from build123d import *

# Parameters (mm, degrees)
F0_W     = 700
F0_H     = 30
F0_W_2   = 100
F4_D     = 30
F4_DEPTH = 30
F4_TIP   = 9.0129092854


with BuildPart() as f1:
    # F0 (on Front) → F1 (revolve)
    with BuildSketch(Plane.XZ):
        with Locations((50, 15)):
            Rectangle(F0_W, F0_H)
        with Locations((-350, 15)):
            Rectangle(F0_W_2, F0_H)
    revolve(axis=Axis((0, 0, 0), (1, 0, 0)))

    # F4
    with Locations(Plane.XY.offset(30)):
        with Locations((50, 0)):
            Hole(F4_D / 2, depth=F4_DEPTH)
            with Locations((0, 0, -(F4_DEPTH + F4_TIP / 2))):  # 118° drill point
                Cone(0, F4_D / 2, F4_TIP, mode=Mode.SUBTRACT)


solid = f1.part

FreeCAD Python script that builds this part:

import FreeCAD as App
import Part
import Sketcher


def add_polygon(sketch, points):
    """Adds a closed chain of lines whose ends are joined by coincident constraints."""
    first, n = sketch.GeometryCount, len(points)
    for a, b in zip(points, points[1:] + points[:1]):
        sketch.addGeometry(Part.LineSegment(App.Vector(*a, 0), App.Vector(*b, 0)), False)
    for i in range(n):
        sketch.addConstraint(Sketcher.Constraint("Coincident", first + i, 2, first + (i + 1) % n, 1))

doc = App.newDocument("Part")
body = doc.addObject("PartDesign::Body", "Body")

# Sketch on XZ plane
sketch1 = body.newObject("Sketcher::SketchObject", "Sketch")
sketch1.AttachmentSupport = (doc.getObject("XZ_Plane"), [""])
sketch1.MapMode = "FlatFace"
add_polygon(sketch1, [(400, 0), (400, 30), (-400, 30), (-400, 0)])  # lines 0-3
sketch1.addConstraint(Sketcher.Constraint("Vertical", 0))
sketch1.addConstraint(Sketcher.Constraint("Horizontal", 1))
sketch1.addConstraint(Sketcher.Constraint("Vertical", 2))
sketch1.addConstraint(Sketcher.Constraint("Horizontal", 3))
sketch1.addConstraint(Sketcher.Constraint("Symmetric", 2, 2, 3, 2, -1, 1))
sketch1.addConstraint(Sketcher.Constraint("DistanceX", 1, 2, 1, 1, 800.0))
sketch1.addConstraint(Sketcher.Constraint("DistanceY", 0, 1, 0, 2, 30.0))
revolution = body.newObject("PartDesign::Revolution", "Revolution")
revolution.Profile = sketch1
revolution.ReferenceAxis = (sketch1, ["H_Axis"])
revolution.Angle = 360

# Sketch on XY plane
sketch2 = body.newObject("Sketcher::SketchObject", "Sketch001")
sketch2.AttachmentSupport = (doc.getObject("XY_Plane"), [""])
sketch2.MapMode = "FlatFace"
sketch2.AttachmentOffset = App.Placement(App.Vector(0, 0, 30), App.Rotation())
sketch2.addGeometry(Part.Circle(App.Vector(50, 0, 0), App.Vector(0, 0, 1), 15), False)
sketch2.addConstraint(Sketcher.Constraint("PointOnObject", 0, 3, -1))
sketch2.addConstraint(Sketcher.Constraint("Diameter", 0, 30.0))
sketch2.addConstraint(Sketcher.Constraint("DistanceX", -1, 1, 0, 3, 50.0))
doc.recompute()
hole = body.newObject("PartDesign::Hole", "Hole")
hole.Profile = sketch2
hole.ThreadType = "None"
hole.Diameter = 30
hole.DepthType = "Dimension"
hole.Depth = 30
hole.DrillPoint = "Angled"
hole.DrillPointAngle = 118

doc.recompute()
